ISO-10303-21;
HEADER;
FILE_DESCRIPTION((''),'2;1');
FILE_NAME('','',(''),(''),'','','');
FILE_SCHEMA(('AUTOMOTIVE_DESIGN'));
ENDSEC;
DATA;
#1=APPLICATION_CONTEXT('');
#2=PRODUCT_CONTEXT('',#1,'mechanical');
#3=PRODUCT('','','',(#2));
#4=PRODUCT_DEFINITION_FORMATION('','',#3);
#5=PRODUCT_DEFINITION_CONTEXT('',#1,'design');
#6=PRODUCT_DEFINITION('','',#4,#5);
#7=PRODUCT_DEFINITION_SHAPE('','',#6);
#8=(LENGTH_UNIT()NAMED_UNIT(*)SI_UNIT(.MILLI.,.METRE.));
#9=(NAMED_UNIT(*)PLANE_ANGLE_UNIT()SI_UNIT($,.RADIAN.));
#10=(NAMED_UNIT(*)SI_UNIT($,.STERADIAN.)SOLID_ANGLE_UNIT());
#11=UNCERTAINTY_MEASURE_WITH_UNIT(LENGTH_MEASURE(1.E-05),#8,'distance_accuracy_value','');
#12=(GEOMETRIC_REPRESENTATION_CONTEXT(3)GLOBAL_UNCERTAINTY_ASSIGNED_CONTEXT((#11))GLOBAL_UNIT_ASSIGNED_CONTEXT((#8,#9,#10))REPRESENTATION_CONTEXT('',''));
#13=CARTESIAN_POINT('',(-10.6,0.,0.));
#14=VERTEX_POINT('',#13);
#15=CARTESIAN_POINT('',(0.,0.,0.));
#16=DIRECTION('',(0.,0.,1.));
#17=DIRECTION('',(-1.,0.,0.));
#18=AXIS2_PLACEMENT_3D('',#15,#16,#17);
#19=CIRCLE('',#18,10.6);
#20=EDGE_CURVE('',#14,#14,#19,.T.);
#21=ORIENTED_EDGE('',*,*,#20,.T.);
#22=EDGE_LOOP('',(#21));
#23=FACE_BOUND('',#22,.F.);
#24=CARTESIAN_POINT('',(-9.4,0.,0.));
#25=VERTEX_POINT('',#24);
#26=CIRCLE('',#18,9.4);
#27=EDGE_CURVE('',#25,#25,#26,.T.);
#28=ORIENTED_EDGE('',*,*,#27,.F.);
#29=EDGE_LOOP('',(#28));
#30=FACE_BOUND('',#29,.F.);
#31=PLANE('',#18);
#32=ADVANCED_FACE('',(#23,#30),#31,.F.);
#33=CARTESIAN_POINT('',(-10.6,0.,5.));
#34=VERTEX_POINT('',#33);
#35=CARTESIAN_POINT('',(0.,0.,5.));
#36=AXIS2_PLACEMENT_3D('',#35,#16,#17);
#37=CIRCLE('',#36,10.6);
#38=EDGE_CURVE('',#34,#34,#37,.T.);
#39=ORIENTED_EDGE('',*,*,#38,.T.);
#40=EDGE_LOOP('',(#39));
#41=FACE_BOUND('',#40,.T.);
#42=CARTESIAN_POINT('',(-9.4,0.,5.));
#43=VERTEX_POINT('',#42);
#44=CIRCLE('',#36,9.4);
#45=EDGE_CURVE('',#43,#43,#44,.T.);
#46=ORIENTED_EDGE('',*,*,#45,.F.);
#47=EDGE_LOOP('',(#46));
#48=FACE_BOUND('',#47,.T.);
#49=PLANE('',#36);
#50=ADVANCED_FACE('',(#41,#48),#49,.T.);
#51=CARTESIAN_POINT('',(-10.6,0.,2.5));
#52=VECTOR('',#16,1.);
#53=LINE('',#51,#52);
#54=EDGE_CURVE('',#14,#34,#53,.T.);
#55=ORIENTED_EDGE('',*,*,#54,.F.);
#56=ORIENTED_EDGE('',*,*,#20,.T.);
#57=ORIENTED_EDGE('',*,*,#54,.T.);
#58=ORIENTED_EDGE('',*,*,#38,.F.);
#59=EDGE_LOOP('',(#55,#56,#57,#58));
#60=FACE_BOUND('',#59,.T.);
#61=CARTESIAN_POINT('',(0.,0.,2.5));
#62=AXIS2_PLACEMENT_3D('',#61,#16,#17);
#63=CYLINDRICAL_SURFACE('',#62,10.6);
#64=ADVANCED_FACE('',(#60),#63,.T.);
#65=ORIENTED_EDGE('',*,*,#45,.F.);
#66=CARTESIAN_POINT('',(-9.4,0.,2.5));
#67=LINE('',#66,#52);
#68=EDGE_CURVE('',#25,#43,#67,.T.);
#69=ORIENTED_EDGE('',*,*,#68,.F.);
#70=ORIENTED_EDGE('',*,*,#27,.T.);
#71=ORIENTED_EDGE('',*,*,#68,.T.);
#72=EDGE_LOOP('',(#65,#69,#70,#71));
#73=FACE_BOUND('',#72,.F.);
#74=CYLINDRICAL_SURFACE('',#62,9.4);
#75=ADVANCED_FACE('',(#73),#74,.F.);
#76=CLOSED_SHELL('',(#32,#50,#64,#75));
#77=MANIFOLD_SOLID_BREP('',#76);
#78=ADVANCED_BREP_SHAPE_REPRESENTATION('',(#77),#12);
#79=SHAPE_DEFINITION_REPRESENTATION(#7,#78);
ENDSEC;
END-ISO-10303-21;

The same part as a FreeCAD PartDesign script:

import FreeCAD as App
import Part
import Sketcher
from FreeCAD import Vector
Q = App.Units.Quantity


def add_polygon(sketch, points):
    """Adds a closed chain of lines whose ends are joined by coincident constraints."""
    first, n = sketch.GeometryCount, len(points)
    for a, b in zip(points, points[1:] + points[:1]):
        sketch.addGeometry(Part.LineSegment(App.Vector(*a, 0), App.Vector(*b, 0)), False)
    for i in range(n):
        sketch.addConstraint(Sketcher.Constraint("Coincident", first + i, 2, first + (i + 1) % n, 1))

doc = App.newDocument("Part")
params = doc.addObject("Spreadsheet::Sheet", "Params")
for row, (alias, value) in enumerate([
    ("sketch1_height", "5 mm"),
    ("sketch1_width", "1.2 mm"),
    ("revolution_angle", "360 deg"),
], start=1):
    params.set(f"A{row}", alias)
    params.set(f"B{row}", "=" + value)
    params.setAlias(f"B{row}", alias)

body = doc.addObject("PartDesign::Body", "Body")

# Sketch on XZ plane
sketch1 = doc.addObject("Sketcher::SketchObject", "Sketch")
body.addObject(sketch1)
sketch1.AttachmentSupport = (doc.XZ_Plane, [""])
sketch1.MapMode = "FlatFace"
add_polygon(sketch1, [(-10.6, 5), (-10.6, 0), (-9.4, 0), (-9.4, 5)])  # lines 0-3
sketch1.addConstraint(Sketcher.Constraint("Vertical", 0))
sketch1.addConstraint(Sketcher.Constraint("Horizontal", 1))
sketch1.addConstraint(Sketcher.Constraint("Vertical", 2))
sketch1.addConstraint(Sketcher.Constraint("Horizontal", 3))
sketch1.addConstraint(Sketcher.Constraint("PointOnObject", 0, 2, -1))
sketch1.addConstraint(Sketcher.Constraint("DistanceY", 0, 2, 0, 1, Q("5 mm")))
sketch1.addConstraint(Sketcher.Constraint("DistanceX", 1, 1, 1, 2, Q("1.2 mm")))
sketch1.addConstraint(Sketcher.Constraint("DistanceX", 0, 2, -1, 1, Q("10.6 mm")))
sketch1.setExpression("Constraints[9]", "Params.sketch1_height")
sketch1.setExpression("Constraints[10]", "Params.sketch1_width")
revolution = doc.addObject("PartDesign::Revolution", "Revolution")
body.addObject(revolution)
revolution.Profile = sketch1
revolution.ReferenceAxis = (sketch1, ["V_Axis"])
revolution.setExpression("Angle", "Params.revolution_angle")

doc.recompute()
